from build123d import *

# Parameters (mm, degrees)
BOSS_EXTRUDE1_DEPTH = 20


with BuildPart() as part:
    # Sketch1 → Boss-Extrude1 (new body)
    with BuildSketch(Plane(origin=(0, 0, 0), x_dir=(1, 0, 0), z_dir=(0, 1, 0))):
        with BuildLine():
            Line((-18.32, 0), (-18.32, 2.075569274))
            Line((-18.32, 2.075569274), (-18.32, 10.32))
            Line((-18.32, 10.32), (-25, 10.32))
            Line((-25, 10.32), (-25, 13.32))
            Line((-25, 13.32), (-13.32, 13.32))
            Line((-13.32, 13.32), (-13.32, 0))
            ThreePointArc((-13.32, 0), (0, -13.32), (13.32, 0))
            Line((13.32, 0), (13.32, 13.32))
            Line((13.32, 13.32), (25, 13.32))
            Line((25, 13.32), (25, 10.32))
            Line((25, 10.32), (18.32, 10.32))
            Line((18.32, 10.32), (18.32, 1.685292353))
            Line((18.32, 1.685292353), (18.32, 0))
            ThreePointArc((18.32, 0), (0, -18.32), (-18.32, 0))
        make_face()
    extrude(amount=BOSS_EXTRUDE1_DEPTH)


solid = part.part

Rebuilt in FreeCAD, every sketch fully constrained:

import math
import FreeCAD as App
import Part
import Sketcher

doc = App.newDocument("Part")
body = doc.addObject("PartDesign::Body", "Body")

# Sketch on XZ plane
sketch1 = doc.addObject("Sketcher::SketchObject", "Sketch")
body.addObject(sketch1)
sketch1.AttachmentSupport = (doc.XZ_Plane, [""])
sketch1.MapMode = "FlatFace"
sketch1.addGeometry(Part.LineSegment(App.Vector(-18.3, -10.3, 0), App.Vector(-18.3, 0, 0)), False)
sketch1.addGeometry(Part.ArcOfCircle(Part.Circle(App.Vector(0, 0, 0), App.Vector(0, 0, 1), 18.3), math.radians(0), math.radians(180)), False)
sketch1.addGeometry(Part.LineSegment(App.Vector(18.3, 0, 0), App.Vector(18.3, -10.3, 0)), False)
sketch1.addGeometry(Part.LineSegment(App.Vector(18.3, -10.3, 0), App.Vector(25, -10.3, 0)), False)
sketch1.addGeometry(Part.LineSegment(App.Vector(25, -10.3, 0), App.Vector(25, -13.3, 0)), False)
sketch1.addGeometry(Part.LineSegment(App.Vector(25, -13.3, 0), App.Vector(13.3, -13.3, 0)), False)
sketch1.addGeometry(Part.LineSegment(App.Vector(13.3, -13.3, 0), App.Vector(13.3, 0, 0)), False)
sketch1.addGeometry(Part.ArcOfCircle(Part.Circle(App.Vector(0, 0, 0), App.Vector(0, 0, 1), 13.3), math.radians(0), math.radians(180)), False)
sketch1.addGeometry(Part.LineSegment(App.Vector(-13.3, 0, 0), App.Vector(-13.3, -13.3, 0)), False)
sketch1.addGeometry(Part.LineSegment(App.Vector(-13.3, -13.3, 0), App.Vector(-25, -13.3, 0)), False)
sketch1.addGeometry(Part.LineSegment(App.Vector(-25, -13.3, 0), App.Vector(-25, -10.3, 0)), False)
sketch1.addGeometry(Part.LineSegment(App.Vector(-25, -10.3, 0), App.Vector(-18.3, -10.3, 0)), False)
sketch1.addConstraint(Sketcher.Constraint("Tangent", 0, 2, 1, 2))
sketch1.addConstraint(Sketcher.Constraint("Tangent", 1, 1, 2, 1))
sketch1.addConstraint(Sketcher.Constraint("Coincident", 2, 2, 3, 1))
sketch1.addConstraint(Sketcher.Constraint("Coincident", 3, 2, 4, 1))
sketch1.addConstraint(Sketcher.Constraint("Coincident", 4, 2, 5, 1))
sketch1.addConstraint(Sketcher.Constraint("Coincident", 5, 2, 6, 1))
sketch1.addConstraint(Sketcher.Constraint("Tangent", 6, 2, 7, 1))
sketch1.addConstraint(Sketcher.Constraint("Tangent", 7, 2, 8, 1))
sketch1.addConstraint(Sketcher.Constraint("Coincident", 8, 2, 9, 1))
sketch1.addConstraint(Sketcher.Constraint("Coincident", 9, 2, 10, 1))
sketch1.addConstraint(Sketcher.Constraint("Coincident", 10, 2, 11, 1))
sketch1.addConstraint(Sketcher.Constraint("Coincident", 11, 2, 0, 1))
sketch1.addConstraint(Sketcher.Constraint("Vertical", 0))
sketch1.addConstraint(Sketcher.Constraint("Vertical", 2))
sketch1.addConstraint(Sketcher.Constraint("Horizontal", 3))
sketch1.addConstraint(Sketcher.Constraint("Vertical", 4))
sketch1.addConstraint(Sketcher.Constraint("Horizontal", 5))
sketch1.addConstraint(Sketcher.Constraint("Vertical", 6))
sketch1.addConstraint(Sketcher.Constraint("Vertical", 8))
sketch1.addConstraint(Sketcher.Constraint("Horizontal", 9))
sketch1.addConstraint(Sketcher.Constraint("Vertical", 10))
sketch1.addConstraint(Sketcher.Constraint("Horizontal", 11))
sketch1.addConstraint(Sketcher.Constraint("Coincident", 1, 3, -1, 1))
sketch1.addConstraint(Sketcher.Constraint("Coincident", 7, 3, -1, 1))
sketch1.addConstraint(Sketcher.Constraint("Symmetric", 4, 2, 9, 2, -2))
sketch1.addConstraint(Sketcher.Constraint("Horizontal", 3, 2, 10, 2))
sketch1.addConstraint(Sketcher.Constraint("DistanceY", 4, 2, 4, 1, 3.0))
sketch1.addConstraint(Sketcher.Constraint("Radius", 1, 18.32))
sketch1.addConstraint(Sketcher.Constraint("Radius", 7, 13.32))
sketch1.addConstraint(Sketcher.Constraint("DistanceX", -1, 1, 3, 2, 25.0))
sketch1.addConstraint(Sketcher.Constraint("DistanceY", 0, 1, 0, 2, 10.32))
pad1 = doc.addObject("PartDesign::Pad", "Pad")
body.addObject(pad1)
pad1.Profile = sketch1
pad1.Length = 20
pad1.Reversed = True

doc.recompute()
